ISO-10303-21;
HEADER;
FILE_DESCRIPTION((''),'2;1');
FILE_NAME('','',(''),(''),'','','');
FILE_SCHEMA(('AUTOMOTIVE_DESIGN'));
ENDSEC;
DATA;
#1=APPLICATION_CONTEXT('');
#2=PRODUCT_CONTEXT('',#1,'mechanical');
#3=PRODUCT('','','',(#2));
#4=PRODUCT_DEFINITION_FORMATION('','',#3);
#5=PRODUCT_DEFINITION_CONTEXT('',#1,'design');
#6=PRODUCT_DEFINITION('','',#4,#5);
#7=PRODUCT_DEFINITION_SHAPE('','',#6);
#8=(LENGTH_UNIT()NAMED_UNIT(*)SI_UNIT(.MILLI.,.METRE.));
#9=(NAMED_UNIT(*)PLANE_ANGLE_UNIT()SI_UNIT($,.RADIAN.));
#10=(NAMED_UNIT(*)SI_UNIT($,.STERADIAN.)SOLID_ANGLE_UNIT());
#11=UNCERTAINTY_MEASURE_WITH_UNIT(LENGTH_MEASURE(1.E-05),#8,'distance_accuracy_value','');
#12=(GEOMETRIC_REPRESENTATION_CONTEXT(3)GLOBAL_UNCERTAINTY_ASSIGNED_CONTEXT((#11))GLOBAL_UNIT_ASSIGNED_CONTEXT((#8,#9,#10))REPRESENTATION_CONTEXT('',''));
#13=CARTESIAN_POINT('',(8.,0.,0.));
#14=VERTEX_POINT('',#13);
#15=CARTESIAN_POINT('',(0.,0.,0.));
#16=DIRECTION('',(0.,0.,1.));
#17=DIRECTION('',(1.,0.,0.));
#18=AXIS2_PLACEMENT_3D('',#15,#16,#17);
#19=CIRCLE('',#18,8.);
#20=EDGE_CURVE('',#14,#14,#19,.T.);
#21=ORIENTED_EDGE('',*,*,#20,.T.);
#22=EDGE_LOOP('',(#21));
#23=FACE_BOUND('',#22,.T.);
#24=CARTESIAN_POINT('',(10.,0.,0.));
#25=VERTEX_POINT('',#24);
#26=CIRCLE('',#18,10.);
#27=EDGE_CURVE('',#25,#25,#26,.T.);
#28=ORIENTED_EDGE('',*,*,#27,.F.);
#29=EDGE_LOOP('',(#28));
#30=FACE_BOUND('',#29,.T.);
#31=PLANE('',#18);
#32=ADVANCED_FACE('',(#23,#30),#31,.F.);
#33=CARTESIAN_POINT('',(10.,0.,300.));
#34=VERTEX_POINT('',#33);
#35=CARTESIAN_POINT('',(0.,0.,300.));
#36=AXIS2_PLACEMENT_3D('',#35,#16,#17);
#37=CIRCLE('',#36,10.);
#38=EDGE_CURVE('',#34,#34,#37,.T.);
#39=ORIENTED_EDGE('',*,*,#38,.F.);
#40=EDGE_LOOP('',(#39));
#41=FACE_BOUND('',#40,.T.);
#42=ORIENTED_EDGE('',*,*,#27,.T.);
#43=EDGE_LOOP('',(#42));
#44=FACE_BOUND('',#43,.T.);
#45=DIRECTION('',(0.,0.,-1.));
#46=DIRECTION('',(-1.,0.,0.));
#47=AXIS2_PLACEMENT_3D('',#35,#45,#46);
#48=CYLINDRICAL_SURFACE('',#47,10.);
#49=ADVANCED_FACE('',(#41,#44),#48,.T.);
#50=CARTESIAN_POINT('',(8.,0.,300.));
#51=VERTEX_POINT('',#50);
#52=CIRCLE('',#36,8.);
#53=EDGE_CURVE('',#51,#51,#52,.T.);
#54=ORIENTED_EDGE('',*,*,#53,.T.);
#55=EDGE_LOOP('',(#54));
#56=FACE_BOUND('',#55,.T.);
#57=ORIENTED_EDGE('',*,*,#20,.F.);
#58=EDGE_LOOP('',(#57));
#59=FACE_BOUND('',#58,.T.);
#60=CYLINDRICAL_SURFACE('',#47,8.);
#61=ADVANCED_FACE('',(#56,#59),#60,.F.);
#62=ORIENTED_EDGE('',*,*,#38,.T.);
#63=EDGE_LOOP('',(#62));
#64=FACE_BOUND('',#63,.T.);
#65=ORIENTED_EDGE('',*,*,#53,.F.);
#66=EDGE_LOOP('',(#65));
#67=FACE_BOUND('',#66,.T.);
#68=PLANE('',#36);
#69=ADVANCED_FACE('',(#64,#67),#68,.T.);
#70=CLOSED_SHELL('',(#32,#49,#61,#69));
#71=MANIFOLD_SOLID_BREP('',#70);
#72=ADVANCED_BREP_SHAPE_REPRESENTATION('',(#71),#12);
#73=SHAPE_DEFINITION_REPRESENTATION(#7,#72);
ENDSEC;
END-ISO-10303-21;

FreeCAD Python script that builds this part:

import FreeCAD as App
import Part
import Sketcher
from FreeCAD import Vector
Q = App.Units.Quantity

doc = App.newDocument("Part")
body = doc.addObject("PartDesign::Body", "Body")

sketch1 = body.newObject("Sketcher::SketchObject", "Sketch")
sketch1.AttachmentSupport = (doc.getObject("XY_Plane"), [""])
sketch1.MapMode = "FlatFace"
sketch1.addGeometry([
    Part.Circle(Vector(0, 0, 0), Vector(0, 0, 1), 10),
    Part.Circle(Vector(0, 0, 0), Vector(0, 0, 1), 8),
], False)
sketch1.addConstraint([
    Sketcher.Constraint("Coincident", 0, 3, -1, 1),
    Sketcher.Constraint("Coincident", 1, 3, -1, 1),
    Sketcher.Constraint("Diameter", 0, Q("20 mm")),
    Sketcher.Constraint("Diameter", 1, Q("16 mm")),
])
pad1 = body.newObject("PartDesign::Pad", "Pad")
pad1.Profile = sketch1
pad1.Length = 300

doc.recompute()
